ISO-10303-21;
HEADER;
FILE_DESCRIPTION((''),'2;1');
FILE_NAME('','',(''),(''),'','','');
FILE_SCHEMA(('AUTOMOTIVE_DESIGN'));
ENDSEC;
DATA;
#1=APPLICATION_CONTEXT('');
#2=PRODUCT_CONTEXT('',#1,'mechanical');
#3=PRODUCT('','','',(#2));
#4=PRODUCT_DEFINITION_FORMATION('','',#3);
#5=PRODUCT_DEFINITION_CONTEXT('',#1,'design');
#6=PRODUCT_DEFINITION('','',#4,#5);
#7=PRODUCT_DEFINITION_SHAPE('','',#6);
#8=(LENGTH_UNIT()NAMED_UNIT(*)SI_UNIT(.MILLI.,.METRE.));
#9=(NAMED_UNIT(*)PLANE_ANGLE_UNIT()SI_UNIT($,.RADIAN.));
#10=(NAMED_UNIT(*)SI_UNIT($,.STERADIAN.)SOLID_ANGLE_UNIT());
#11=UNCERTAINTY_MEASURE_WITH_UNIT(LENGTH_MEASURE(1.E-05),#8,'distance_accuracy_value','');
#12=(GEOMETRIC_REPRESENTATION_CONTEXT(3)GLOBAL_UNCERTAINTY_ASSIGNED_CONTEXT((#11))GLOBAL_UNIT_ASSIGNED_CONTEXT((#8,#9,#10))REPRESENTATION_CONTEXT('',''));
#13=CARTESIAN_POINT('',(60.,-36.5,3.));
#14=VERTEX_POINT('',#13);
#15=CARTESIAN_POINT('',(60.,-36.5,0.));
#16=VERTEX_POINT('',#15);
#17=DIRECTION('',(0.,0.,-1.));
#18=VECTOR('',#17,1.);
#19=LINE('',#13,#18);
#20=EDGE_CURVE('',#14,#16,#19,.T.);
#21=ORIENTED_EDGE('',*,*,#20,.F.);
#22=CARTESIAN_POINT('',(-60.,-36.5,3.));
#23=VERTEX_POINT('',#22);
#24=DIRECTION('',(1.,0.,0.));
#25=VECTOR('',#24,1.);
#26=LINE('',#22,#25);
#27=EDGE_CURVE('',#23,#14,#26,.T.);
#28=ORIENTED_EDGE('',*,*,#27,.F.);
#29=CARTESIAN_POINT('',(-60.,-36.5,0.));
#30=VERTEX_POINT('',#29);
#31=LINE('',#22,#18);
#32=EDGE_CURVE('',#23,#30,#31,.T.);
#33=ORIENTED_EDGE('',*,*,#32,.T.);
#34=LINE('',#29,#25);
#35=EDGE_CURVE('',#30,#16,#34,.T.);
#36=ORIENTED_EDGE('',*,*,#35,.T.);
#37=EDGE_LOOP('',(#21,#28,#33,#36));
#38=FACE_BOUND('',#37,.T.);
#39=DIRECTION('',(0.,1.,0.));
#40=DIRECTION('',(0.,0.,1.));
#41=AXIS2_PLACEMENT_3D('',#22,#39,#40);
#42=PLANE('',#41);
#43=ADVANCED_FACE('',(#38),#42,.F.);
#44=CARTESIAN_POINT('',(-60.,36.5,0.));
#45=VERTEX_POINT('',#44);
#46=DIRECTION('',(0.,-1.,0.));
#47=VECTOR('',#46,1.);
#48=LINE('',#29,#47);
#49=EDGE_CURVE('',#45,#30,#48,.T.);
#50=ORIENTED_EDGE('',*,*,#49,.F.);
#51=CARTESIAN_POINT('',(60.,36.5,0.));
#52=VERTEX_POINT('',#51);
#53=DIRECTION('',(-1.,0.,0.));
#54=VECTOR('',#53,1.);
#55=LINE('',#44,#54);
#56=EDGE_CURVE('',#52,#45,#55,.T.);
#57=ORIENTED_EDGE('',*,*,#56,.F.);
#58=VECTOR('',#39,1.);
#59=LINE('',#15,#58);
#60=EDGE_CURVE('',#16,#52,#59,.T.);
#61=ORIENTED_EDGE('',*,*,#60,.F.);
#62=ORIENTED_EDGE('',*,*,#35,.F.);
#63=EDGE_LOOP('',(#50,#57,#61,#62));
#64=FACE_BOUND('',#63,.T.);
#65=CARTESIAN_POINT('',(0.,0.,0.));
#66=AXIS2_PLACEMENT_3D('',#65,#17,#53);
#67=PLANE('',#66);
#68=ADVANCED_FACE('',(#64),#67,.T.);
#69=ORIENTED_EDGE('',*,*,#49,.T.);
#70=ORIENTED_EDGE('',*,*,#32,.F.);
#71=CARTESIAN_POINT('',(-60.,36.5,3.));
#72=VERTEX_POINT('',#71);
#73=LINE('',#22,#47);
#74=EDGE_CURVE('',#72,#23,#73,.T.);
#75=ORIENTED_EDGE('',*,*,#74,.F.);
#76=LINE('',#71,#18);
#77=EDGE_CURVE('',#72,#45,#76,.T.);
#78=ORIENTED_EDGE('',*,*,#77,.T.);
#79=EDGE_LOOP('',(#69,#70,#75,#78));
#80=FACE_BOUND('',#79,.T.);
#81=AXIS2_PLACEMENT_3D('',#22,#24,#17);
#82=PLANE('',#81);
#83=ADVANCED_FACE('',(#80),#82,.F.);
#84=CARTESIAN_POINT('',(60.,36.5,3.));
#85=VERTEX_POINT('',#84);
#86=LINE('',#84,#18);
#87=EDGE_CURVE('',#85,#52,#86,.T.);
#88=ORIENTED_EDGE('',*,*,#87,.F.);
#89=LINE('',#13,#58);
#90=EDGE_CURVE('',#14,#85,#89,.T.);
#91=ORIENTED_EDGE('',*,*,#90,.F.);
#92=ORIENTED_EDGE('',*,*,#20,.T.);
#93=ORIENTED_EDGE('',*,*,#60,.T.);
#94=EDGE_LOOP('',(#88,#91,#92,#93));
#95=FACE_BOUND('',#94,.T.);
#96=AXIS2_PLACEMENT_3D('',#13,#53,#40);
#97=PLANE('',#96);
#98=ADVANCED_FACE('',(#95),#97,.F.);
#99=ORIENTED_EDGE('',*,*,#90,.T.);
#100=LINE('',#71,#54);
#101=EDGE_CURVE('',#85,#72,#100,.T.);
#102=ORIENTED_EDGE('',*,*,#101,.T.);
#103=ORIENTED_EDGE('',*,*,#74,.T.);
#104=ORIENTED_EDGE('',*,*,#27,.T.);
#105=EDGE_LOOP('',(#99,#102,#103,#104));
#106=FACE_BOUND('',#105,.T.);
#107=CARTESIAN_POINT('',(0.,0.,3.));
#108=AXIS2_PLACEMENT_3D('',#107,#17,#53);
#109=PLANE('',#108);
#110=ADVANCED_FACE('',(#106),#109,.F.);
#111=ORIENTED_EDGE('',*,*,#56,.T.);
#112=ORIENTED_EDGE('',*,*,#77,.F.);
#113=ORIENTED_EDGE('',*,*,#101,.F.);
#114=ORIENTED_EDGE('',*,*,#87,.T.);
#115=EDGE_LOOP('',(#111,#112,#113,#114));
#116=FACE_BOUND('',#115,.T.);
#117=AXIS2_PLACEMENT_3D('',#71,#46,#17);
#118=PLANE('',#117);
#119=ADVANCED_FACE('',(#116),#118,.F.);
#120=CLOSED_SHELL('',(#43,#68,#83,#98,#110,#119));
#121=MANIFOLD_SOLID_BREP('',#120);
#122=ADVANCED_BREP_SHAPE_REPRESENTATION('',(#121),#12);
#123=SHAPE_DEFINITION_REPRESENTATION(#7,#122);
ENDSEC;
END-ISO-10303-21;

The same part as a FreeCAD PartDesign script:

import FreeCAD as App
import Part
import Sketcher
from FreeCAD import Vector

doc = App.newDocument("Part")
body = doc.addObject("PartDesign::Body", "Body")

sketch1 = body.newObject("Sketcher::SketchObject", "Sketch")
sketch1.AttachmentSupport = (doc.getObject("XY_Plane"), [""])
sketch1.MapMode = "FlatFace"
sketch1.addGeometry([
    Part.LineSegment(Vector(-60, 36, 0), Vector(-60, -36, 0)),
    Part.LineSegment(Vector(-60, -36, 0), Vector(60, -36, 0)),
    Part.LineSegment(Vector(60, -36, 0), Vector(60, 36, 0)),
    Part.LineSegment(Vector(60, 36, 0), Vector(-60, 36, 0)),
], False)
sketch1.addConstraint([
    Sketcher.Constraint("Coincident", 0, 2, 1, 1),
    Sketcher.Constraint("Coincident", 1, 2, 2, 1),
    Sketcher.Constraint("Coincident", 2, 2, 3, 1),
    Sketcher.Constraint("Coincident", 3, 2, 0, 1),
    Sketcher.Constraint("Vertical", 0),
    Sketcher.Constraint("Horizontal", 1),
    Sketcher.Constraint("Vertical", 2),
    Sketcher.Constraint("Horizontal", 3),
    Sketcher.Constraint("Symmetric", 0, 2, 2, 2, -1, 1),
    Sketcher.Constraint("DistanceX", 1, 1, 1, 2, 120.0),
    Sketcher.Constraint("DistanceY", 0, 2, 0, 1, 73.0),
])
pad1 = body.newObject("PartDesign::Pad", "Pad")
pad1.Profile = sketch1
pad1.Length = 3

doc.recompute()
